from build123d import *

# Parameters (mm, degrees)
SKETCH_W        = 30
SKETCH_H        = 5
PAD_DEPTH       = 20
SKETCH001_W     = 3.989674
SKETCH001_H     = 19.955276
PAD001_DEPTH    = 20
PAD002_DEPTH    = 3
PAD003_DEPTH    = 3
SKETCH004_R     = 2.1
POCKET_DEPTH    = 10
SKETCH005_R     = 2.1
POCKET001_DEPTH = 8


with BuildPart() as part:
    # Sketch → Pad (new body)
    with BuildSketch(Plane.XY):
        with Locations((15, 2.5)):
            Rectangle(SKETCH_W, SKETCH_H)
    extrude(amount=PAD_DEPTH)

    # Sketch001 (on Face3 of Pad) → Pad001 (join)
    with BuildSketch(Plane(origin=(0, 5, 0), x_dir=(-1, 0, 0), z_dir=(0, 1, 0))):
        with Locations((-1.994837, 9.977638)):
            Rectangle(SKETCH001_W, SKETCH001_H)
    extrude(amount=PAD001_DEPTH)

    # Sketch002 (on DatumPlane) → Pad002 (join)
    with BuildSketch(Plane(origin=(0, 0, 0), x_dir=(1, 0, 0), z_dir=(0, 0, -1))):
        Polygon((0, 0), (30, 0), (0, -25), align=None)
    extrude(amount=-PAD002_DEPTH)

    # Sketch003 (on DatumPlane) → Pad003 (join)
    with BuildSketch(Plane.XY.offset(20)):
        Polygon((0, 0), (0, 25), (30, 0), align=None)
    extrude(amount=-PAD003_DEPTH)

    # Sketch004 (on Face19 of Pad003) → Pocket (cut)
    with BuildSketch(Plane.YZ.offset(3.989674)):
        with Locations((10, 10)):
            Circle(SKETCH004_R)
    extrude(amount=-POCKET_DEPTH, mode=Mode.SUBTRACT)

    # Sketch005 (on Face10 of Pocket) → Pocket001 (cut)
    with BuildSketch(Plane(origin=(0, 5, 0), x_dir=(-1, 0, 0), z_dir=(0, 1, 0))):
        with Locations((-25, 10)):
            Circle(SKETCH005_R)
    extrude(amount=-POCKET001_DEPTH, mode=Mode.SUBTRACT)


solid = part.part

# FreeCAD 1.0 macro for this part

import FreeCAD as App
import Part
import Sketcher

V = App.Vector

doc = App.newDocument("Part")
body = doc.addObject("PartDesign::Body", "Body")

# Sketch on XY plane
sketch1 = body.newObject("Sketcher::SketchObject", "Sketch")
sketch1.AttachmentSupport = (doc.getObject("XY_Plane"), [""])
sketch1.MapMode = "FlatFace"
sketch1.addGeometry(Part.LineSegment(V(0, 5, 0), V(0, 0, 0)), False)
sketch1.addGeometry(Part.LineSegment(V(0, 0, 0), V(30, 0, 0)), False)
sketch1.addGeometry(Part.LineSegment(V(30, 0, 0), V(30, 5, 0)), False)
sketch1.addGeometry(Part.LineSegment(V(30, 5, 0), V(0, 5, 0)), False)
sketch1.addConstraint(Sketcher.Constraint("Coincident", 0, 2, 1, 1))
sketch1.addConstraint(Sketcher.Constraint("Coincident", 1, 2, 2, 1))
sketch1.addConstraint(Sketcher.Constraint("Coincident", 2, 2, 3, 1))
sketch1.addConstraint(Sketcher.Constraint("Coincident", 3, 2, 0, 1))
sketch1.addConstraint(Sketcher.Constraint("Vertical", 0))
sketch1.addConstraint(Sketcher.Constraint("Horizontal", 1))
sketch1.addConstraint(Sketcher.Constraint("Vertical", 2))
sketch1.addConstraint(Sketcher.Constraint("Horizontal", 3))
sketch1.addConstraint(Sketcher.Constraint("Coincident", 0, 2, -1, 1))
sketch1.addConstraint(Sketcher.Constraint("DistanceX", 1, 1, 1, 2, 30.0))
sketch1.addConstraint(Sketcher.Constraint("DistanceY", 0, 2, 0, 1, 5.0))
pad1 = body.newObject("PartDesign::Pad", "Pad")
pad1.Profile = sketch1
pad1.Length = 20

# Sketch on XZ plane
sketch2 = body.newObject("Sketcher::SketchObject", "Sketch001")
sketch2.AttachmentSupport = (doc.getObject("XZ_Plane"), [""])
sketch2.MapMode = "FlatFace"
sketch2.AttachmentOffset = App.Placement(V(0, 0, -5), App.Rotation())
sketch2.addGeometry(Part.LineSegment(V(4, 20, 0), V(4, 0, 0)), False)
sketch2.addGeometry(Part.LineSegment(V(4, 0, 0), V(0, 0, 0)), False)
sketch2.addGeometry(Part.LineSegment(V(0, 0, 0), V(0, 20, 0)), False)
sketch2.addGeometry(Part.LineSegment(V(0, 20, 0), V(4, 20, 0)), False)
sketch2.addConstraint(Sketcher.Constraint("Coincident", 0, 2, 1, 1))
sketch2.addConstraint(Sketcher.Constraint("Coincident", 1, 2, 2, 1))
sketch2.addConstraint(Sketcher.Constraint("Coincident", 2, 2, 3, 1))
sketch2.addConstraint(Sketcher.Constraint("Coincident", 3, 2, 0, 1))
sketch2.addConstraint(Sketcher.Constraint("Vertical", 0))
sketch2.addConstraint(Sketcher.Constraint("Horizontal", 1))
sketch2.addConstraint(Sketcher.Constraint("Vertical", 2))
sketch2.addConstraint(Sketcher.Constraint("Horizontal", 3))
sketch2.addConstraint(Sketcher.Constraint("Coincident", 1, 2, -1, 1))
sketch2.addConstraint(Sketcher.Constraint("DistanceX", 1, 2, 1, 1, 3.989674))
sketch2.addConstraint(Sketcher.Constraint("DistanceY", 0, 2, 0, 1, 19.955276))
pad2 = body.newObject("PartDesign::Pad", "Pad001")
pad2.Profile = sketch2
pad2.Length = 20
pad2.Reversed = True

# Sketch on XY plane
sketch3 = body.newObject("Sketcher::SketchObject", "Sketch002")
sketch3.AttachmentSupport = (doc.getObject("XY_Plane"), [""])
sketch3.MapMode = "FlatFace"
sketch3.addGeometry(Part.LineSegment(V(30, 0, 0), V(0, 0, 0)), False)
sketch3.addGeometry(Part.LineSegment(V(0, 0, 0), V(0, 25, 0)), False)
sketch3.addGeometry(Part.LineSegment(V(0, 25, 0), V(30, 0, 0)), False)
sketch3.addConstraint(Sketcher.Constraint("Coincident", 0, 2, 1, 1))
sketch3.addConstraint(Sketcher.Constraint("Coincident", 1, 2, 2, 1))
sketch3.addConstraint(Sketcher.Constraint("Coincident", 2, 2, 0, 1))
sketch3.addConstraint(Sketcher.Constraint("Horizontal", 0))
sketch3.addConstraint(Sketcher.Constraint("Vertical", 1))
sketch3.addConstraint(Sketcher.Constraint("Coincident", 0, 2, -1, 1))
sketch3.addConstraint(Sketcher.Constraint("DistanceX", 0, 2, 0, 1, 30.0))
sketch3.addConstraint(Sketcher.Constraint("DistanceY", 1, 1, 1, 2, 25.0))
pad3 = body.newObject("PartDesign::Pad", "Pad002")
pad3.Profile = sketch3
pad3.Length = 3

# Sketch on XY plane
sketch4 = body.newObject("Sketcher::SketchObject", "Sketch003")
sketch4.AttachmentSupport = (doc.getObject("XY_Plane"), [""])
sketch4.MapMode = "FlatFace"
sketch4.AttachmentOffset = App.Placement(V(0, 0, 20), App.Rotation())
sketch4.addGeometry(Part.LineSegment(V(0, 25, 0), V(0, 0, 0)), False)
sketch4.addGeometry(Part.LineSegment(V(0, 0, 0), V(30, 0, 0)), False)
sketch4.addGeometry(Part.LineSegment(V(30, 0, 0), V(0, 25, 0)), False)
sketch4.addConstraint(Sketcher.Constraint("Coincident", 0, 2, 1, 1))
sketch4.addConstraint(Sketcher.Constraint("Coincident", 1, 2, 2, 1))
sketch4.addConstraint(Sketcher.Constraint("Coincident", 2, 2, 0, 1))
sketch4.addConstraint(Sketcher.Constraint("Vertical", 0))
sketch4.addConstraint(Sketcher.Constraint("Horizontal", 1))
sketch4.addConstraint(Sketcher.Constraint("Coincident", 0, 2, -1, 1))
sketch4.addConstraint(Sketcher.Constraint("DistanceX", 1, 1, 1, 2, 30.0))
sketch4.addConstraint(Sketcher.Constraint("DistanceY", 0, 2, 0, 1, 25.0))
pad4 = body.newObject("PartDesign::Pad", "Pad003")
pad4.Profile = sketch4
pad4.Length = 3
pad4.Reversed = True

# Sketch on YZ plane
sketch5 = body.newObject("Sketcher::SketchObject", "Sketch004")
sketch5.AttachmentSupport = (doc.getObject("YZ_Plane"), [""])
sketch5.MapMode = "FlatFace"
sketch5.AttachmentOffset = App.Placement(V(0, 0, 3.989674), App.Rotation())
sketch5.addGeometry(Part.Circle(V(10, 10, 0), V(0, 0, 1), 2.1), False)
sketch5.addConstraint(Sketcher.Constraint("Diameter", 0, 4.2))
sketch5.addConstraint(Sketcher.Constraint("DistanceX", -1, 1, 0, 3, 10.0))
sketch5.addConstraint(Sketcher.Constraint("DistanceY", -1, 1, 0, 3, 10.0))
pocket1 = body.newObject("PartDesign::Pocket", "Pocket")
pocket1.Profile = sketch5
pocket1.Length = 10

# Sketch on XZ plane
sketch6 = body.newObject("Sketcher::SketchObject", "Sketch005")
sketch6.AttachmentSupport = (doc.getObject("XZ_Plane"), [""])
sketch6.MapMode = "FlatFace"
sketch6.AttachmentOffset = App.Placement(V(0, 0, -5), App.Rotation())
sketch6.addGeometry(Part.Circle(V(25, 10, 0), V(0, 0, 1), 2.1), False)
sketch6.addConstraint(Sketcher.Constraint("Diameter", 0, 4.2))
sketch6.addConstraint(Sketcher.Constraint("DistanceX", -1, 1, 0, 3, 25.0))
sketch6.addConstraint(Sketcher.Constraint("DistanceY", -1, 1, 0, 3, 10.0))
pocket2 = body.newObject("PartDesign::Pocket", "Pocket001")
pocket2.Profile = sketch6
pocket2.Length = 8
pocket2.Reversed = True

doc.recompute()
